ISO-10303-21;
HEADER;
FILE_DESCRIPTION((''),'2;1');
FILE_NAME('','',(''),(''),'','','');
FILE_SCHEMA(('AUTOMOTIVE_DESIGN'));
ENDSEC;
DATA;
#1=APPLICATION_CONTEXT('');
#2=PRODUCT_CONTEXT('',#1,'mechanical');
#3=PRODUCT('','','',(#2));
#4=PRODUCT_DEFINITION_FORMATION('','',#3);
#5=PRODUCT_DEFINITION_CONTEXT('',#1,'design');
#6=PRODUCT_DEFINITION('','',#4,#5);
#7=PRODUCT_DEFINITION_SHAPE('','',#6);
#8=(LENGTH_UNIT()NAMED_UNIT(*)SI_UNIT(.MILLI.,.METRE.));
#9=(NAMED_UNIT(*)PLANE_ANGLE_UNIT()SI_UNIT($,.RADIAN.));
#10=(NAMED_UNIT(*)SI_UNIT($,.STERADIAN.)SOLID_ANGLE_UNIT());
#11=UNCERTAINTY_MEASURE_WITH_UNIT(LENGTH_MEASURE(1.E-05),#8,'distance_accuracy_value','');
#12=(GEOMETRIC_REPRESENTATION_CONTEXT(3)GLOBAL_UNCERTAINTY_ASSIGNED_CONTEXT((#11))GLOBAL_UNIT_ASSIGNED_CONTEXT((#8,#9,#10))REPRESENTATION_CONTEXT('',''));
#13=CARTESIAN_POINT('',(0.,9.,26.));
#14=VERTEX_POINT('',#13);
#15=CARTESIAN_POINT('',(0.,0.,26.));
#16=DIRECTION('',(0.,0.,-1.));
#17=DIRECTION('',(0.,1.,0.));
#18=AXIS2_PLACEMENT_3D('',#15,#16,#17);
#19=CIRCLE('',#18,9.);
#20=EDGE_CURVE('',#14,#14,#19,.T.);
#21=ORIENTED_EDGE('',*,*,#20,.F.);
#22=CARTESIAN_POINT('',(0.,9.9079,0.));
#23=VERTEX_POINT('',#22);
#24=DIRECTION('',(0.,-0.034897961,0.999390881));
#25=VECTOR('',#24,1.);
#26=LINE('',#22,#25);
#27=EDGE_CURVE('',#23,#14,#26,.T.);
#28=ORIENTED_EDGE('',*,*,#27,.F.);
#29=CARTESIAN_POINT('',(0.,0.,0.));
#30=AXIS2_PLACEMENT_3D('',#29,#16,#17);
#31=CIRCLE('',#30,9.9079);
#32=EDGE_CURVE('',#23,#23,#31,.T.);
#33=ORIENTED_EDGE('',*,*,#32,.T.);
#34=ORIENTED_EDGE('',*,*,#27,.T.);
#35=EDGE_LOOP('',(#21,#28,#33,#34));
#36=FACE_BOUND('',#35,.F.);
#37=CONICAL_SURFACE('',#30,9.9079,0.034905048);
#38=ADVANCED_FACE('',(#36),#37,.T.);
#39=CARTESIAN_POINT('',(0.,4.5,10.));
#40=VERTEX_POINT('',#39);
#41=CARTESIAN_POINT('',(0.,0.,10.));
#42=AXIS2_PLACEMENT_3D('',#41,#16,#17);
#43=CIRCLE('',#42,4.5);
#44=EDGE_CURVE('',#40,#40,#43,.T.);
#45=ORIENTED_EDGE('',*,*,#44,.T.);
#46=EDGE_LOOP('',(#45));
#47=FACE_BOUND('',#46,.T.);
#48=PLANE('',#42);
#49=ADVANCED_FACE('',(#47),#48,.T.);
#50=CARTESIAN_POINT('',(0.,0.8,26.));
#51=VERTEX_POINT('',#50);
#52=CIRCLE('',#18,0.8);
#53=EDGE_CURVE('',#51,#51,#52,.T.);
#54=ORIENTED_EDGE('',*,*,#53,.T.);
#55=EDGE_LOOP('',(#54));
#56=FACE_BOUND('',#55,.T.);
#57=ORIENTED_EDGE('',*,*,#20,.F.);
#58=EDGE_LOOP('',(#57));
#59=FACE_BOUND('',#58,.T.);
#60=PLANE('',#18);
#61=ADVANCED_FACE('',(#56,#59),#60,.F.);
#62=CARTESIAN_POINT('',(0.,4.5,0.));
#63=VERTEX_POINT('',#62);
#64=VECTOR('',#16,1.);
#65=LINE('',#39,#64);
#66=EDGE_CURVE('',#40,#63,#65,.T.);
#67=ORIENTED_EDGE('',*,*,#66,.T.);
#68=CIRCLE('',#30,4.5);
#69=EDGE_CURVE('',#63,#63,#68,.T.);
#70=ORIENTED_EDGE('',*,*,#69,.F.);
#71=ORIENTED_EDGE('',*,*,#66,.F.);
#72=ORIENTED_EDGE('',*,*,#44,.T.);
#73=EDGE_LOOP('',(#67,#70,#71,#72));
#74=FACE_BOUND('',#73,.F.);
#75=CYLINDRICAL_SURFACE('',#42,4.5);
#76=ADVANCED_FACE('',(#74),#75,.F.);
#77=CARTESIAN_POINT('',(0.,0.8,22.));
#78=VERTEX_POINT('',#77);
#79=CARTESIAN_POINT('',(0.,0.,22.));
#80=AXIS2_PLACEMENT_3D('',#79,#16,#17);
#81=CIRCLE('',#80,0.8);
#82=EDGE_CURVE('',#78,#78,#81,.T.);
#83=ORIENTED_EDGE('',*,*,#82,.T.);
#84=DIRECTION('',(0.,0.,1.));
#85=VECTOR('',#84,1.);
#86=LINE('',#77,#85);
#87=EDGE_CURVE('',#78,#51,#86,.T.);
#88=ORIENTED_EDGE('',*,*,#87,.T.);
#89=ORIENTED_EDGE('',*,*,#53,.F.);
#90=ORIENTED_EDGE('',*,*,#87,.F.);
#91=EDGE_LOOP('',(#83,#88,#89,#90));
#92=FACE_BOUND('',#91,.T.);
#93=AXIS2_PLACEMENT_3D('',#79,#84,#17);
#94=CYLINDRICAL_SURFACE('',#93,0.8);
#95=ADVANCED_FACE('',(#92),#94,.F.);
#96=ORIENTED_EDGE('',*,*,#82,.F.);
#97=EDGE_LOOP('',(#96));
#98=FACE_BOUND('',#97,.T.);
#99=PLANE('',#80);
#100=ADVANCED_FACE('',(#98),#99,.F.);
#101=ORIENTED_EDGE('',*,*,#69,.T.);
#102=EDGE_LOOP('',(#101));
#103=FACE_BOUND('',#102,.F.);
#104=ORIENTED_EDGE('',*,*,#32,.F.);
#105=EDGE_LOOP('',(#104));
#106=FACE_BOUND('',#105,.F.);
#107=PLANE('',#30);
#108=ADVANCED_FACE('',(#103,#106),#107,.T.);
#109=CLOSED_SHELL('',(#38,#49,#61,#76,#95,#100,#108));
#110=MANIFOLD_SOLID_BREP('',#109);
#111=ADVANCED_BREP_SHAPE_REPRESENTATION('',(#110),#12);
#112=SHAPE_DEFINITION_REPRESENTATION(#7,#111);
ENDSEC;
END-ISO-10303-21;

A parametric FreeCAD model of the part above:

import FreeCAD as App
import Part
import Sketcher

V = App.Vector
Q = App.Units.Quantity


def add_polygon(sketch, points):
    """Adds a closed chain of lines whose ends are joined by coincident constraints."""
    first, n = sketch.GeometryCount, len(points)
    for a, b in zip(points, points[1:] + points[:1]):
        sketch.addGeometry(Part.LineSegment(App.Vector(*a, 0), App.Vector(*b, 0)), False)
    for i in range(n):
        sketch.addConstraint(Sketcher.Constraint("Coincident", first + i, 2, first + (i + 1) % n, 1))

doc = App.newDocument("Part")
params = doc.addObject("Spreadsheet::Sheet", "Params")
for row, (alias, value) in enumerate([
    ("sketch1_height", "10 mm"),
    ("sketch1_height2", "4 mm"),
    ("sketch1_width", "4.5 mm"),
    ("sketch1_width2", "0.8 mm"),
    ("revolution_angle", "360 deg"),
], start=1):
    params.set(f"A{row}", alias)
    params.set(f"B{row}", "=" + value)
    params.setAlias(f"B{row}", alias)

body = doc.addObject("PartDesign::Body", "Body")

sketch1 = doc.addObject("Sketcher::SketchObject", "Sketch")
body.addObject(sketch1)
sketch1.AttachmentSupport = (doc.YZ_Plane, [""])
sketch1.MapMode = "FlatFace"
add_polygon(sketch1, [(0, 10), (4.5, 10), (4.5, 0), (9.9079, 0), (9, 26), (0.8, 26), (0.8, 22), (0, 22)])
sketch1.addConstraint(Sketcher.Constraint("Horizontal", 0))
sketch1.addConstraint(Sketcher.Constraint("Vertical", 1))
sketch1.addConstraint(Sketcher.Constraint("Horizontal", 2))
sketch1.addConstraint(Sketcher.Constraint("Horizontal", 4))
sketch1.addConstraint(Sketcher.Constraint("Vertical", 5))
sketch1.addConstraint(Sketcher.Constraint("Horizontal", 6))
sketch1.addConstraint(Sketcher.Constraint("Vertical", 7))
sketch1.addConstraint(Sketcher.Constraint("PointOnObject", 1, 2, -1))
sketch1.addConstraint(Sketcher.Constraint("PointOnObject", 6, 2, -2))
sketch1.addConstraint(Sketcher.Constraint("DistanceY", 1, 2, 1, 1, 10.0))
sketch1.addConstraint(Sketcher.Constraint("DistanceY", 5, 2, 5, 1, 4.0))
sketch1.addConstraint(Sketcher.Constraint("Angle", 3, Q("92 deg")))
sketch1.addConstraint(Sketcher.Constraint("DistanceX", 0, 1, 0, 2, 4.5))
sketch1.addConstraint(Sketcher.Constraint("DistanceX", 6, 2, 6, 1, 0.8))
sketch1.addConstraint(Sketcher.Constraint("DistanceX", -1, 1, 3, 2, 9.0))
sketch1.addConstraint(Sketcher.Constraint("DistanceY", -1, 1, 3, 2, 26.0))
sketch1.setExpression("Constraints[17]", "Params.sketch1_height")
sketch1.setExpression("Constraints[18]", "Params.sketch1_height2")
sketch1.setExpression("Constraints[20]", "Params.sketch1_width")
sketch1.setExpression("Constraints[21]", "Params.sketch1_width2")
revolution = doc.addObject("PartDesign::Revolution", "Revolution")
body.addObject(revolution)
revolution.Profile = sketch1
revolution.ReferenceAxis = (sketch1, ["V_Axis"])
revolution.setExpression("Angle", "Params.revolution_angle")

doc.recompute()
